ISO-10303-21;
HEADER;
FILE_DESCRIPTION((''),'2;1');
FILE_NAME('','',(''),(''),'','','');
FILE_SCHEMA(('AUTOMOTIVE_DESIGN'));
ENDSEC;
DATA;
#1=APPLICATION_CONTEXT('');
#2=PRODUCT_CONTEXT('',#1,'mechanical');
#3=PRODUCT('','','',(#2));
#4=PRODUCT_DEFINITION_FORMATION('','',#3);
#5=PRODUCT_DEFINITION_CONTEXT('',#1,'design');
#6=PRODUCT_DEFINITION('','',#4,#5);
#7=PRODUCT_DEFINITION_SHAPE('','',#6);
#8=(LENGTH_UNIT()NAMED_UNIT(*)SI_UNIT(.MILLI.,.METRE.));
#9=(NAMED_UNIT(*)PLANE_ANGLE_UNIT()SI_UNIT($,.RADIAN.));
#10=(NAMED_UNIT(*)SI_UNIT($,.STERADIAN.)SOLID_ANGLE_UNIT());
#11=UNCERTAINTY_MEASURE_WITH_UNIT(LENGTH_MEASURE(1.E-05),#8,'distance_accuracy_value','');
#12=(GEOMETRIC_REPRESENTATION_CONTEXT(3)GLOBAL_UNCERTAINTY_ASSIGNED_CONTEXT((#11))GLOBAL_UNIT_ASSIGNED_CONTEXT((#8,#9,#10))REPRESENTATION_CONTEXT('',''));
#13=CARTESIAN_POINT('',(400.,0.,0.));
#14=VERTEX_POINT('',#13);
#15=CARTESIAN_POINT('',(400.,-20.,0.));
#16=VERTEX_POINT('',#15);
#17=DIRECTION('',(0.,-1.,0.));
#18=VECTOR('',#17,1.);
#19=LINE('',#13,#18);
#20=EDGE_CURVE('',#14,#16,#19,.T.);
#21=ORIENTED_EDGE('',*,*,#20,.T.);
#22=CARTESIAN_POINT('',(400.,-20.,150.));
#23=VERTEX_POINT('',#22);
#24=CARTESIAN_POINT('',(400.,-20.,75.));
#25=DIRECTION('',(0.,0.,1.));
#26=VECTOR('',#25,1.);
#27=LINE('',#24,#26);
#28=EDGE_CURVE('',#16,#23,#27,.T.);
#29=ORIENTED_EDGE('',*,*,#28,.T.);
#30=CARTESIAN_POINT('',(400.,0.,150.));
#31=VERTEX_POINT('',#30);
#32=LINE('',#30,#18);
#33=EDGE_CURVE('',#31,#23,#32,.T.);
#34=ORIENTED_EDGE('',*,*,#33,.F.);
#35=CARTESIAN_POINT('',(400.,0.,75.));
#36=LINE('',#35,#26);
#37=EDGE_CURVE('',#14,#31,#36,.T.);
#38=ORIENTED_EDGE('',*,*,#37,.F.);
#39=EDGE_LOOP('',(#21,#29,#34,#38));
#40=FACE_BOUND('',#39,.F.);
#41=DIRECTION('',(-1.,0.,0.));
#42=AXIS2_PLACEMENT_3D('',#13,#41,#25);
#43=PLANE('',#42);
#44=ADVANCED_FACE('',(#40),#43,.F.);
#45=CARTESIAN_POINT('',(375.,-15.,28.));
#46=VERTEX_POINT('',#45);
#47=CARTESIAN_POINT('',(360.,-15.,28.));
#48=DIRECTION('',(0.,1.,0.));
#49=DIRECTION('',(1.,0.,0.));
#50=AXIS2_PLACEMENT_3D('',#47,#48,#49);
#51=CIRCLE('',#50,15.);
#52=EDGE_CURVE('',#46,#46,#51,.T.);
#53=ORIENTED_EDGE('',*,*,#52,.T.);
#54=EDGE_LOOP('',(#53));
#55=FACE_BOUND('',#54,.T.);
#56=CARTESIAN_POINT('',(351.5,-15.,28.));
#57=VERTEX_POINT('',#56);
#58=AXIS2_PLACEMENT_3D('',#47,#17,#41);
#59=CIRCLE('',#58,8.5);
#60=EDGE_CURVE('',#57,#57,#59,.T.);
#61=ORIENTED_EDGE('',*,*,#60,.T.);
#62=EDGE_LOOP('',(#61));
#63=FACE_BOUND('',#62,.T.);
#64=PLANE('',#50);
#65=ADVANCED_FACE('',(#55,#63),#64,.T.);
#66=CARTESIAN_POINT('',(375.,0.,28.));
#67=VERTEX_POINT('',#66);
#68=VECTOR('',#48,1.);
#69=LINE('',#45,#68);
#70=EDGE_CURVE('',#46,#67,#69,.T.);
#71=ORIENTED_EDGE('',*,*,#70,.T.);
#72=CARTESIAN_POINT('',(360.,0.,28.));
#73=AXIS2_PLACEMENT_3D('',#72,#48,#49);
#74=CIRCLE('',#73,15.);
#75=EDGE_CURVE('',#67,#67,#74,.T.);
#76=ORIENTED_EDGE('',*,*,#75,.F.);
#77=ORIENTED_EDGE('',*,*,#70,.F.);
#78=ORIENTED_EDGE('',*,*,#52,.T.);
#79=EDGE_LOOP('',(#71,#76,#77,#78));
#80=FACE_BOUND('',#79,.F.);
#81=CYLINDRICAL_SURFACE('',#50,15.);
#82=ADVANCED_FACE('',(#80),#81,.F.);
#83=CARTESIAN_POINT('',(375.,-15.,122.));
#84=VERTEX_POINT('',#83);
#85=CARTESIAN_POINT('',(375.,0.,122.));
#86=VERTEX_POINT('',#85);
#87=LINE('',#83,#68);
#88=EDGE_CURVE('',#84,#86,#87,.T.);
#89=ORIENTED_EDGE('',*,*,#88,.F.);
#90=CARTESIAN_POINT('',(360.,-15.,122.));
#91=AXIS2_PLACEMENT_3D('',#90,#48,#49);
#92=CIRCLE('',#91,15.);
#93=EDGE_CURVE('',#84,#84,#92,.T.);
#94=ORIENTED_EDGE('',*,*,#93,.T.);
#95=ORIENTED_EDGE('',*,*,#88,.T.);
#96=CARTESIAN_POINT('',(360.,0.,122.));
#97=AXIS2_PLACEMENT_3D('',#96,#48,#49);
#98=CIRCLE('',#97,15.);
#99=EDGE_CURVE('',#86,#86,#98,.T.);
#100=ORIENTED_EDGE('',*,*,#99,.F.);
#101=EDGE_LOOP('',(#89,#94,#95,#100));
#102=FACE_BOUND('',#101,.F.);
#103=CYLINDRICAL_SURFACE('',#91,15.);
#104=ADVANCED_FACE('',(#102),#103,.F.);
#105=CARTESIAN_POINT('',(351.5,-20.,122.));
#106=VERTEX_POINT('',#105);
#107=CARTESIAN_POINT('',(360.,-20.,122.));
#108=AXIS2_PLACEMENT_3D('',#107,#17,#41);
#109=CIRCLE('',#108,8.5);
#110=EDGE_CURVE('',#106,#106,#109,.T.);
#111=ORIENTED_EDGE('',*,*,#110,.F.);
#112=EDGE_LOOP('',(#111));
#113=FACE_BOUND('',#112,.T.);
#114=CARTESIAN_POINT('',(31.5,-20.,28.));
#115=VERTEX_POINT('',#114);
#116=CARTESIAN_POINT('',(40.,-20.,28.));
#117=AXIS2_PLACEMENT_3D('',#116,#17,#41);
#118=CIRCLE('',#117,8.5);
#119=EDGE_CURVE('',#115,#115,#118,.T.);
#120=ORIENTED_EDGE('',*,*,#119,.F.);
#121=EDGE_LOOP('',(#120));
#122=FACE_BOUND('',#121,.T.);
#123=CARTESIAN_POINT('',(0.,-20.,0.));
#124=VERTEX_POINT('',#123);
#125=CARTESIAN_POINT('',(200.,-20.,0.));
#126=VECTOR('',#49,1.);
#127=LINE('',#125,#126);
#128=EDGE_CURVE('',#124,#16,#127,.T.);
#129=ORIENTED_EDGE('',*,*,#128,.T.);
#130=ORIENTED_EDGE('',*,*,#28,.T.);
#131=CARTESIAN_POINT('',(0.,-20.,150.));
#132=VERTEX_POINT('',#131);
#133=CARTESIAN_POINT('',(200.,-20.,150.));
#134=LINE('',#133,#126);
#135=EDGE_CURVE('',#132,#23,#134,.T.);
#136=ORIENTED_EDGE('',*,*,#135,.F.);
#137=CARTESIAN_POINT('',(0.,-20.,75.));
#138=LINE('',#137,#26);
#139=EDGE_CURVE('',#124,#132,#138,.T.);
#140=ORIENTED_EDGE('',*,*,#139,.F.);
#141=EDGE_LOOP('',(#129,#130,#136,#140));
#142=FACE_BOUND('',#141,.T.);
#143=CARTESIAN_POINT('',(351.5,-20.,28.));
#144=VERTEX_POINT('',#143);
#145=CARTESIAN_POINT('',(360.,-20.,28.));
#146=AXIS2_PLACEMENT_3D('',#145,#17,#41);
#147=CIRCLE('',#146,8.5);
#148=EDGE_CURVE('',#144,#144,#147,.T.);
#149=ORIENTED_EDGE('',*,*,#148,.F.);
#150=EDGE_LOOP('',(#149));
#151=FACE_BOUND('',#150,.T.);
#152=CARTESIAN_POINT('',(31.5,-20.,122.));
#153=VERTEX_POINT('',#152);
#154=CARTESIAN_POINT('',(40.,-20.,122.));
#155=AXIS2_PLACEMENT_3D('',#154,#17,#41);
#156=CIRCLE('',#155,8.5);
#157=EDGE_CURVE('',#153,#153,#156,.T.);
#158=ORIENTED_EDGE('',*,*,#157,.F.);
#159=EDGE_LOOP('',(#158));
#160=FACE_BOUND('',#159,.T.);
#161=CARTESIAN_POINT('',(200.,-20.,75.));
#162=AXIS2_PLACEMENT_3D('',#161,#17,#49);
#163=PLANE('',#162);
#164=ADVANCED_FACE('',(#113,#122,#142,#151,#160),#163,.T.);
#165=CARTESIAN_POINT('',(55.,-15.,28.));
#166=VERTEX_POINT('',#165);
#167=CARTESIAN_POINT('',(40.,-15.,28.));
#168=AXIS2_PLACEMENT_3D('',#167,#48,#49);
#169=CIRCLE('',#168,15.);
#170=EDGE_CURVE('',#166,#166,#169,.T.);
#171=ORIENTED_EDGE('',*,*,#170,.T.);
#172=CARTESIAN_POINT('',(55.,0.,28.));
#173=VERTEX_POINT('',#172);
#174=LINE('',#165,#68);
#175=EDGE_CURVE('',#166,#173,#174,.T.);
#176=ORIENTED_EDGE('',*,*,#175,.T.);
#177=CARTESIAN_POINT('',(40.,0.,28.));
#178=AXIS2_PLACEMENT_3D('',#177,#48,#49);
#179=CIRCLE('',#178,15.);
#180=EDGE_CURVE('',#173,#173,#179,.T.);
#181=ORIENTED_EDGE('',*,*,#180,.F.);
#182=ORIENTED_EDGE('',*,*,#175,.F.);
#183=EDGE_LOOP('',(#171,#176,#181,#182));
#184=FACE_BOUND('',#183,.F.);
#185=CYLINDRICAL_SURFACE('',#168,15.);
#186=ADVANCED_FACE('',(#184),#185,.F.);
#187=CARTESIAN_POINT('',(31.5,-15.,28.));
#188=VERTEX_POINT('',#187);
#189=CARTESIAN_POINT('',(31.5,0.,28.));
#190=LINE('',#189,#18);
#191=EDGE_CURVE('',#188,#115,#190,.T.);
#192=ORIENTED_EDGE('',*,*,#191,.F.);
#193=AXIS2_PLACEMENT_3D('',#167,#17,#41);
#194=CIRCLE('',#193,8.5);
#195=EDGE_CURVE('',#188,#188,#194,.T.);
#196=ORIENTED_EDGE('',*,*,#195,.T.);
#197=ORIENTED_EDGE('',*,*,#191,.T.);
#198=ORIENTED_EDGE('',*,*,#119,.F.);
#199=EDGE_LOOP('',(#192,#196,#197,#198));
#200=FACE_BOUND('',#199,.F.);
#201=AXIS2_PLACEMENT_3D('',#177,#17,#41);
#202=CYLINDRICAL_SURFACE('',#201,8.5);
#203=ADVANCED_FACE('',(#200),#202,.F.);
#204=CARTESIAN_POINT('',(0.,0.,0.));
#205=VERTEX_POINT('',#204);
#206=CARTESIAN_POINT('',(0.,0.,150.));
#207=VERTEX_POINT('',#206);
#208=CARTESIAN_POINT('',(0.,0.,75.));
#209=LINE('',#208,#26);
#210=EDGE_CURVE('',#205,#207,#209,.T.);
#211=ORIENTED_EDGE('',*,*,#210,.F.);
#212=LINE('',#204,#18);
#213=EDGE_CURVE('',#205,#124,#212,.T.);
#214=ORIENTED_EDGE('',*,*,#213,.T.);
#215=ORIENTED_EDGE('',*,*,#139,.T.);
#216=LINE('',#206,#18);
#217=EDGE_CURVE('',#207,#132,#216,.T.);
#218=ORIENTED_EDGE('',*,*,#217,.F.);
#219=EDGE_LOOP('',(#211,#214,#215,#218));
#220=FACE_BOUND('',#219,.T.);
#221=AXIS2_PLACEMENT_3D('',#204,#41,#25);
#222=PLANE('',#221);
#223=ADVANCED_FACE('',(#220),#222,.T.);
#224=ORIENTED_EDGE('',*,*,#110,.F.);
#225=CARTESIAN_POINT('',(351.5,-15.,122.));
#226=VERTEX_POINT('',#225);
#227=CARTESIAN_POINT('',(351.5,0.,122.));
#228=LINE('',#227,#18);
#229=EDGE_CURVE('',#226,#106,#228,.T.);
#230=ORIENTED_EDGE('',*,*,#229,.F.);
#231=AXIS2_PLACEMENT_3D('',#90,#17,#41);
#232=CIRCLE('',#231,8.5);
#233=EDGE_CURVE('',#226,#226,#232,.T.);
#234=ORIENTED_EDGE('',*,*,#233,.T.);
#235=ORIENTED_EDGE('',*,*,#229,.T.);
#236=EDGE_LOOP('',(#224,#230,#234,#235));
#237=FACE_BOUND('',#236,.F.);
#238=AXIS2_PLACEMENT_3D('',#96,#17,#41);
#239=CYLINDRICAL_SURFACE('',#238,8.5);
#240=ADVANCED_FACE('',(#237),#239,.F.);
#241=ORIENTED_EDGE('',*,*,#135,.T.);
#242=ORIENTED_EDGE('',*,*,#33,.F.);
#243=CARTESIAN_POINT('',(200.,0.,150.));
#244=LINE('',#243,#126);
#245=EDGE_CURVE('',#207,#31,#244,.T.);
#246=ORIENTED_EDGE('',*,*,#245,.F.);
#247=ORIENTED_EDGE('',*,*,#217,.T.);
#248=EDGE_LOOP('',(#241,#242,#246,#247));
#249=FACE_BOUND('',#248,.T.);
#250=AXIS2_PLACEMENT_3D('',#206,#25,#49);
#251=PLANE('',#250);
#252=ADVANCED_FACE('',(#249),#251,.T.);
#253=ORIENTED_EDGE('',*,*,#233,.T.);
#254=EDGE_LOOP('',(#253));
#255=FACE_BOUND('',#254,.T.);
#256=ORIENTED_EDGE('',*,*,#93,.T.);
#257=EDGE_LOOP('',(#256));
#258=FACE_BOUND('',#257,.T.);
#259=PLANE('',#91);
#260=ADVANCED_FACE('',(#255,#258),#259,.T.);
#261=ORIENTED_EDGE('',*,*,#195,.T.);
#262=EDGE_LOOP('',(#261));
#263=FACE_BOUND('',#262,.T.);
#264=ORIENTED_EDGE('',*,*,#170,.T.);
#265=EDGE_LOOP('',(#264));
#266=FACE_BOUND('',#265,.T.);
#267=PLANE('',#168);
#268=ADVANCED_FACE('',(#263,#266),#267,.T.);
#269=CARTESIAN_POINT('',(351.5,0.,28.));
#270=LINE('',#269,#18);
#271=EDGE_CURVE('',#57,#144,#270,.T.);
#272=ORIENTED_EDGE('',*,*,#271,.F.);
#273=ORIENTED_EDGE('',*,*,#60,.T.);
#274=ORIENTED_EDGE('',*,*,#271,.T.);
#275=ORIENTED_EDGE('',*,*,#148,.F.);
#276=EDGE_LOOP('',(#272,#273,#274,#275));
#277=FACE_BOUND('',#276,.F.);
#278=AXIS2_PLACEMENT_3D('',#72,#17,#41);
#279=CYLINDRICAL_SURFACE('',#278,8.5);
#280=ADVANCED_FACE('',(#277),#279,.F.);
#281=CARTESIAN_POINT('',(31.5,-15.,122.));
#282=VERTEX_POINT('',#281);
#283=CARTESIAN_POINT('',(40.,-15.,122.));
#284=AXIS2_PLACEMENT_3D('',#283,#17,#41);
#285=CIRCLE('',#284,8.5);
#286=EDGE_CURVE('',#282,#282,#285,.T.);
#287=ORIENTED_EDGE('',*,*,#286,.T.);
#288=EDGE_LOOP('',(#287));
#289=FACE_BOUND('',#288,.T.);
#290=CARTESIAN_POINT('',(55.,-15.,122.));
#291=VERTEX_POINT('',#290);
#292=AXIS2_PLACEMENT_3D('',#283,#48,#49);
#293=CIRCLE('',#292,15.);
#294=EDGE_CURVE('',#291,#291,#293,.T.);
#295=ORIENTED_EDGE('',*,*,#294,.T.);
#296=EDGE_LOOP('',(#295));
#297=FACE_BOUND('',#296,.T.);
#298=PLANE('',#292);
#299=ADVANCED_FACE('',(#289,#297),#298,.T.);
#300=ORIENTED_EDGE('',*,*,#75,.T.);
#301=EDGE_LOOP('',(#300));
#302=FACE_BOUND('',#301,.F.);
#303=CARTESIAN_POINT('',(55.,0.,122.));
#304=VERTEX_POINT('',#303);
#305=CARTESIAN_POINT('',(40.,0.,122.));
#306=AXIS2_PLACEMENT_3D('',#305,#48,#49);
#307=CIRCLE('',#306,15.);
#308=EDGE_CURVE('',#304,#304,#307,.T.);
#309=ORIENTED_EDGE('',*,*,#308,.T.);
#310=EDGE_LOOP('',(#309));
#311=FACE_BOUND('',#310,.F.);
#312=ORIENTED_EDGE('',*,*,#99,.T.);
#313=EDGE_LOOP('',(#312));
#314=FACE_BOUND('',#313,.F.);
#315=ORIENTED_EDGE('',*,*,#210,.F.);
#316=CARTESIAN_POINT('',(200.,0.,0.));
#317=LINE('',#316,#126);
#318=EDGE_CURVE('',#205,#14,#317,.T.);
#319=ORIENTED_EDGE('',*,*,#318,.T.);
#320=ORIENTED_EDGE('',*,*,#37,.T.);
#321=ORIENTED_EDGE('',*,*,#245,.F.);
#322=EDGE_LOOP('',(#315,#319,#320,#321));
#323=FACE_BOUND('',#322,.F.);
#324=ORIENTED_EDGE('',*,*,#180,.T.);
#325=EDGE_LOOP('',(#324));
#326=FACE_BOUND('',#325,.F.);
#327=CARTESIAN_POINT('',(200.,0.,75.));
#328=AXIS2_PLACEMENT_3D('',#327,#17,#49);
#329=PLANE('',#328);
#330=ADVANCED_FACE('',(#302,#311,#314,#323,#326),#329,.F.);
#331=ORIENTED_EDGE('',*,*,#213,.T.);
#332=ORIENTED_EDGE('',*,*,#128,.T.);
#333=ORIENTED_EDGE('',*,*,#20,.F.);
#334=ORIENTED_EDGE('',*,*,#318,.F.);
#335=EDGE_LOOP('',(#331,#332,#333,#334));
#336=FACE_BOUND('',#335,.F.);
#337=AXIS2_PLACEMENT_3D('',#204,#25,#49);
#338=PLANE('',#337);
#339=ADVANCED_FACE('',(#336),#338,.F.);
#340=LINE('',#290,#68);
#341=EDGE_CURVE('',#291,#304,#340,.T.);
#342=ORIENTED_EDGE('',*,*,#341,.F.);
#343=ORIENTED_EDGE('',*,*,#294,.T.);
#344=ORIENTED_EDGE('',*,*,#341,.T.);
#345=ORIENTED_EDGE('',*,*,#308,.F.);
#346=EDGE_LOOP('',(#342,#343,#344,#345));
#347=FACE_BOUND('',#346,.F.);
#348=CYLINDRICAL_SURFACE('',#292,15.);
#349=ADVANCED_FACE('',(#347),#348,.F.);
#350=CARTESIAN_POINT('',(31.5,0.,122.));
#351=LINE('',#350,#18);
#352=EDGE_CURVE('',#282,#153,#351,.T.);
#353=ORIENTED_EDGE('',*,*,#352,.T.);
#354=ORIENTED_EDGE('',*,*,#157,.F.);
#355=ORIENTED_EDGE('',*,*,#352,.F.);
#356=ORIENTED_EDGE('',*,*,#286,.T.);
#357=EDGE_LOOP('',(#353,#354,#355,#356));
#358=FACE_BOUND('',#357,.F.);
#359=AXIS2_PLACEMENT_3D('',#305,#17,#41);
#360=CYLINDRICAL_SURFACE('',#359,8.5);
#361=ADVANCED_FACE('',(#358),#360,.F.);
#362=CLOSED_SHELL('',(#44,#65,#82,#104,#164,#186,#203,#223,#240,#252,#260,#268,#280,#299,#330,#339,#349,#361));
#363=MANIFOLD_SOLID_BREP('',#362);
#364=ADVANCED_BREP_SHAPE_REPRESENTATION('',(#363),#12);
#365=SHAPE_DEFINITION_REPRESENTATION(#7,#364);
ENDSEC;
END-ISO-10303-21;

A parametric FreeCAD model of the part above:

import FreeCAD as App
import Part
import Sketcher
Q = App.Units.Quantity

doc = App.newDocument("Part")
params = doc.addObject("Spreadsheet::Sheet", "Params")
for row, (alias, value) in enumerate([
    ("sketch1_width", "400 mm"),
    ("sketch1_height", "150 mm"),
    ("pad1_length", "20 mm"),
    ("sketch2_diameter", "17 mm"),
    ("hole_diameter", "17 mm"),
    ("hole_depth", "35 mm"),
    ("hole_cbore_diameter", "30 mm"),
    ("hole_cbore_depth", "15 mm"),
], start=1):
    params.set(f"A{row}", alias)
    params.set(f"B{row}", "=" + value)
    params.setAlias(f"B{row}", alias)

body = doc.addObject("PartDesign::Body", "Body")

sketch1 = body.newObject("Sketcher::SketchObject", "Sketch")
sketch1.AttachmentSupport = (doc.getObject("XZ_Plane"), [""])
sketch1.MapMode = "FlatFace"
sketch1.addGeometry([
    Part.LineSegment(App.Vector(0, 150, 0), App.Vector(0, 0, 0)),
    Part.LineSegment(App.Vector(0, 0, 0), App.Vector(400, 0, 0)),
    Part.LineSegment(App.Vector(400, 0, 0), App.Vector(400, 150, 0)),
    Part.LineSegment(App.Vector(400, 150, 0), App.Vector(0, 150, 0)),
], False)
sketch1.addConstraint([
    Sketcher.Constraint("Coincident", 0, 2, 1, 1),
    Sketcher.Constraint("Coincident", 1, 2, 2, 1),
    Sketcher.Constraint("Coincident", 2, 2, 3, 1),
    Sketcher.Constraint("Coincident", 3, 2, 0, 1),
    Sketcher.Constraint("Vertical", 0),
    Sketcher.Constraint("Horizontal", 1),
    Sketcher.Constraint("Vertical", 2),
    Sketcher.Constraint("Horizontal", 3),
    Sketcher.Constraint("Coincident", 0, 2, -1, 1),
    Sketcher.Constraint("DistanceX", 1, 1, 1, 2, Q("400 mm")),
    Sketcher.Constraint("DistanceY", 0, 2, 0, 1, Q("150 mm")),
])
sketch1.setExpression("Constraints[9]", "Params.sketch1_width")
sketch1.setExpression("Constraints[10]", "Params.sketch1_height")
pad1 = body.newObject("PartDesign::Pad", "Pad")
pad1.Profile = sketch1
pad1.setExpression("Length", "Params.pad1_length")

sketch2 = body.newObject("Sketcher::SketchObject", "Sketch001")
sketch2.AttachmentSupport = (doc.getObject("XZ_Plane"), [""])
sketch2.MapMode = "FlatFace"
sketch2.addGeometry([
    Part.Circle(App.Vector(360, 122, 0), App.Vector(0, 0, 1), 8.5),
    Part.Circle(App.Vector(360, 28, 0), App.Vector(0, 0, 1), 8.5),
    Part.Circle(App.Vector(40, 122, 0), App.Vector(0, 0, 1), 8.5),
    Part.Circle(App.Vector(40, 28, 0), App.Vector(0, 0, 1), 8.5),
], False)
sketch2.addConstraint([
    Sketcher.Constraint("Equal", 0, 1),
    Sketcher.Constraint("Equal", 1, 2),
    Sketcher.Constraint("Equal", 2, 3),
    Sketcher.Constraint("Horizontal", 0, 3, 2, 3),
    Sketcher.Constraint("Horizontal", 1, 3, 3, 3),
    Sketcher.Constraint("Vertical", 0, 3, 1, 3),
    Sketcher.Constraint("Vertical", 2, 3, 3, 3),
    Sketcher.Constraint("Diameter", 0, Q("17 mm")),
    Sketcher.Constraint("DistanceX", -1, 1, 0, 3, Q("360 mm")),
    Sketcher.Constraint("DistanceY", -1, 1, 0, 3, Q("122 mm")),
    Sketcher.Constraint("DistanceY", -1, 1, 1, 3, Q("28 mm")),
    Sketcher.Constraint("DistanceX", -1, 1, 2, 3, Q("40 mm")),
])
sketch2.setExpression("Constraints[7]", "Params.sketch2_diameter")
doc.recompute()
hole = body.newObject("PartDesign::Hole", "Hole")
hole.Profile = sketch2
hole.ThreadType = "None"
hole.setExpression("Diameter", "Params.hole_diameter")
hole.DepthType = "Dimension"
hole.setExpression("Depth", "Params.hole_depth")
hole.DrillPoint = "Angled"
hole.DrillPointAngle = 118
hole.HoleCutType = "Counterbore"
hole.setExpression("HoleCutDiameter", "Params.hole_cbore_diameter")
hole.setExpression("HoleCutDepth", "Params.hole_cbore_depth")
hole.Reversed = True

doc.recompute()
